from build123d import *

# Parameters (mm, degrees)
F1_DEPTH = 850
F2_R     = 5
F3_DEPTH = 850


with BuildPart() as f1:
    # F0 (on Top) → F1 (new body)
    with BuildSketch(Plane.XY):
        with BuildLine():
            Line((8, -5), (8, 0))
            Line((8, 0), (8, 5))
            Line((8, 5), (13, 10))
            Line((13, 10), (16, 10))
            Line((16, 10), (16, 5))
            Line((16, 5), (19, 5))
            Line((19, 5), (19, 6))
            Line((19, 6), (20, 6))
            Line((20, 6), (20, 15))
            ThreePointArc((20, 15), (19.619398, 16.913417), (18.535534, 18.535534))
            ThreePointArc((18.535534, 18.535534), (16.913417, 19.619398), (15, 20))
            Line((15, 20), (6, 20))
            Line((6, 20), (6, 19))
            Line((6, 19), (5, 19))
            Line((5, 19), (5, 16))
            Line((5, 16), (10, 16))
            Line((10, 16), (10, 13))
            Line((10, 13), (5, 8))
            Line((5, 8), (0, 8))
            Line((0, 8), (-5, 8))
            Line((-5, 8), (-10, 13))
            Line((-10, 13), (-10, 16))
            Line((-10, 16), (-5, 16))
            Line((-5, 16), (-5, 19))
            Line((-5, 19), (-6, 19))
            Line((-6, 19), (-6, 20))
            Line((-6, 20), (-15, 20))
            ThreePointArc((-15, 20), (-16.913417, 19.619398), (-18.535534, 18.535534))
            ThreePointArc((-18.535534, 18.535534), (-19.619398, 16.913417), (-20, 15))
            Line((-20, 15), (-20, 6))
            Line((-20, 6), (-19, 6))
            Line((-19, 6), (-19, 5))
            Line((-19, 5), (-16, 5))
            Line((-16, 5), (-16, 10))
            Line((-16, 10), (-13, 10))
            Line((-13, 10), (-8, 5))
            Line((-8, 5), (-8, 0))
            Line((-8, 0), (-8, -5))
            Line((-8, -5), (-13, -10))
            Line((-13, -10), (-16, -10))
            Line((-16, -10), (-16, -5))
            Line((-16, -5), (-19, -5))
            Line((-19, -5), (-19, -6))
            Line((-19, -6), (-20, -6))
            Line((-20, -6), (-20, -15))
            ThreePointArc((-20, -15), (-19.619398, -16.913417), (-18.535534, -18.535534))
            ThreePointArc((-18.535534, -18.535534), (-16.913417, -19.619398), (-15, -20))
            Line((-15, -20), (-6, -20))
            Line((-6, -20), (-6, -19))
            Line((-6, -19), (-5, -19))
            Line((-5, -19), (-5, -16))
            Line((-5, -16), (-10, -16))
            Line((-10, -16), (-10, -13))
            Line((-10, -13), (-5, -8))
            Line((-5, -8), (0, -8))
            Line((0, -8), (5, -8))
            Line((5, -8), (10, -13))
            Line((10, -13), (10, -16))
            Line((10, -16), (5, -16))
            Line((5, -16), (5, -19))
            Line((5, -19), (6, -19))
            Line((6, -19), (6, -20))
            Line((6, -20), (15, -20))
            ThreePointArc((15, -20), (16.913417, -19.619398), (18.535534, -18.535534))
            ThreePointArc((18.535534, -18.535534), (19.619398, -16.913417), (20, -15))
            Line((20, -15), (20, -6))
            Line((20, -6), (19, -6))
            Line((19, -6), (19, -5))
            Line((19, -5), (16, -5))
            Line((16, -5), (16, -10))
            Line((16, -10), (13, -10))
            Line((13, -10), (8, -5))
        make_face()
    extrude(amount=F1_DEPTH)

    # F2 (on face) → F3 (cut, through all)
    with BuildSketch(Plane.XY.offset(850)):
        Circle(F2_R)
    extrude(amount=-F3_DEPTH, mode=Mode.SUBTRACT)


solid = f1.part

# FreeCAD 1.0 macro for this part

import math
import FreeCAD as App
import Part
import Sketcher

doc = App.newDocument("Part")
body = doc.addObject("PartDesign::Body", "Body")

# Sketch on XY plane
sketch1 = body.newObject("Sketcher::SketchObject", "Sketch")
sketch1.AttachmentSupport = (doc.getObject("XY_Plane"), [""])
sketch1.MapMode = "FlatFace"
sketch1.addGeometry([
    Part.LineSegment(App.Vector(8, -5, 0), App.Vector(8, 5, 0)),  # 0
    Part.LineSegment(App.Vector(8, 5, 0), App.Vector(13, 10, 0)),  # 1
    Part.LineSegment(App.Vector(13, 10, 0), App.Vector(16, 10, 0)),  # 2
    Part.LineSegment(App.Vector(16, 10, 0), App.Vector(16, 5, 0)),  # 3
    Part.LineSegment(App.Vector(16, 5, 0), App.Vector(19, 5, 0)),  # 4
    Part.LineSegment(App.Vector(19, 5, 0), App.Vector(19, 6, 0)),  # 5
    Part.LineSegment(App.Vector(19, 6, 0), App.Vector(20, 6, 0)),  # 6
    Part.LineSegment(App.Vector(20, 6, 0), App.Vector(20, 15, 0)),  # 7
    Part.ArcOfCircle(Part.Circle(App.Vector(15, 15, 0), App.Vector(0, 0, 1), 5), math.radians(0), math.radians(45)),  # 8
    Part.ArcOfCircle(Part.Circle(App.Vector(15, 15, 0), App.Vector(0, 0, 1), 5), math.radians(45), math.radians(90)),  # 9
    Part.LineSegment(App.Vector(15, 20, 0), App.Vector(6, 20, 0)),  # 10
    Part.LineSegment(App.Vector(6, 20, 0), App.Vector(6, 19, 0)),  # 11
    Part.LineSegment(App.Vector(6, 19, 0), App.Vector(5, 19, 0)),  # 12
    Part.LineSegment(App.Vector(5, 19, 0), App.Vector(5, 16, 0)),  # 13
    Part.LineSegment(App.Vector(5, 16, 0), App.Vector(10, 16, 0)),  # 14
    Part.LineSegment(App.Vector(10, 16, 0), App.Vector(10, 13, 0)),  # 15
    Part.LineSegment(App.Vector(10, 13, 0), App.Vector(5, 8, 0)),  # 16
    Part.LineSegment(App.Vector(5, 8, 0), App.Vector(-5, 8, 0)),  # 17
    Part.LineSegment(App.Vector(-5, 8, 0), App.Vector(-10, 13, 0)),  # 18
    Part.LineSegment(App.Vector(-10, 13, 0), App.Vector(-10, 16, 0)),  # 19
    Part.LineSegment(App.Vector(-10, 16, 0), App.Vector(-5, 16, 0)),  # 20
    Part.LineSegment(App.Vector(-5, 16, 0), App.Vector(-5, 19, 0)),  # 21
    Part.LineSegment(App.Vector(-5, 19, 0), App.Vector(-6, 19, 0)),  # 22
    Part.LineSegment(App.Vector(-6, 19, 0), App.Vector(-6, 20, 0)),  # 23
    Part.LineSegment(App.Vector(-6, 20, 0), App.Vector(-15, 20, 0)),  # 24
    Part.ArcOfCircle(Part.Circle(App.Vector(-15, 15, 0), App.Vector(0, 0, 1), 5), math.radians(90), math.radians(135)),  # 25
    Part.ArcOfCircle(Part.Circle(App.Vector(-15, 15, 0), App.Vector(0, 0, 1), 5), math.radians(135), math.radians(180)),  # 26
    Part.LineSegment(App.Vector(-20, 15, 0), App.Vector(-20, 6, 0)),  # 27
    Part.LineSegment(App.Vector(-20, 6, 0), App.Vector(-19, 6, 0)),  # 28
    Part.LineSegment(App.Vector(-19, 6, 0), App.Vector(-19, 5, 0)),  # 29
    Part.LineSegment(App.Vector(-19, 5, 0), App.Vector(-16, 5, 0)),  # 30
    Part.LineSegment(App.Vector(-16, 5, 0), App.Vector(-16, 10, 0)),  # 31
    Part.LineSegment(App.Vector(-16, 10, 0), App.Vector(-13, 10, 0)),  # 32
    Part.LineSegment(App.Vector(-13, 10, 0), App.Vector(-8, 5, 0)),  # 33
    Part.LineSegment(App.Vector(-8, 5, 0), App.Vector(-8, -5, 0)),  # 34
    Part.LineSegment(App.Vector(-8, -5, 0), App.Vector(-13, -10, 0)),  # 35
    Part.LineSegment(App.Vector(-13, -10, 0), App.Vector(-16, -10, 0)),  # 36
    Part.LineSegment(App.Vector(-16, -10, 0), App.Vector(-16, -5, 0)),  # 37
    Part.LineSegment(App.Vector(-16, -5, 0), App.Vector(-19, -5, 0)),  # 38
    Part.LineSegment(App.Vector(-19, -5, 0), App.Vector(-19, -6, 0)),  # 39
    Part.LineSegment(App.Vector(-19, -6, 0), App.Vector(-20, -6, 0)),  # 40
    Part.LineSegment(App.Vector(-20, -6, 0), App.Vector(-20, -15, 0)),  # 41
    Part.ArcOfCircle(Part.Circle(App.Vector(-15, -15, 0), App.Vector(0, 0, 1), 5), math.radians(180), math.radians(225)),  # 42
    Part.ArcOfCircle(Part.Circle(App.Vector(-15, -15, 0), App.Vector(0, 0, 1), 5), math.radians(-135), math.radians(-90)),  # 43
    Part.LineSegment(App.Vector(-15, -20, 0), App.Vector(-6, -20, 0)),  # 44
    Part.LineSegment(App.Vector(-6, -20, 0), App.Vector(-6, -19, 0)),  # 45
    Part.LineSegment(App.Vector(-6, -19, 0), App.Vector(-5, -19, 0)),  # 46
    Part.LineSegment(App.Vector(-5, -19, 0), App.Vector(-5, -16, 0)),  # 47
    Part.LineSegment(App.Vector(-5, -16, 0), App.Vector(-10, -16, 0)),  # 48
    Part.LineSegment(App.Vector(-10, -16, 0), App.Vector(-10, -13, 0)),  # 49
    Part.LineSegment(App.Vector(-10, -13, 0), App.Vector(-5, -8, 0)),  # 50
    Part.LineSegment(App.Vector(-5, -8, 0), App.Vector(5, -8, 0)),  # 51
    Part.LineSegment(App.Vector(5, -8, 0), App.Vector(10, -13, 0)),  # 52
    Part.LineSegment(App.Vector(10, -13, 0), App.Vector(10, -16, 0)),  # 53
    Part.LineSegment(App.Vector(10, -16, 0), App.Vector(5, -16, 0)),  # 54
    Part.LineSegment(App.Vector(5, -16, 0), App.Vector(5, -19, 0)),  # 55
    Part.LineSegment(App.Vector(5, -19, 0), App.Vector(6, -19, 0)),  # 56
    Part.LineSegment(App.Vector(6, -19, 0), App.Vector(6, -20, 0)),  # 57
    Part.LineSegment(App.Vector(6, -20, 0), App.Vector(15, -20, 0)),  # 58
    Part.ArcOfCircle(Part.Circle(App.Vector(15, -15, 0), App.Vector(0, 0, 1), 5), math.radians(-90), math.radians(-45)),  # 59
    Part.ArcOfCircle(Part.Circle(App.Vector(15, -15, 0), App.Vector(0, 0, 1), 5), math.radians(-45), math.radians(0)),  # 60
    Part.LineSegment(App.Vector(20, -15, 0), App.Vector(20, -6, 0)),  # 61
    Part.LineSegment(App.Vector(20, -6, 0), App.Vector(19, -6, 0)),  # 62
    Part.LineSegment(App.Vector(19, -6, 0), App.Vector(19, -5, 0)),  # 63
    Part.LineSegment(App.Vector(19, -5, 0), App.Vector(16, -5, 0)),  # 64
    Part.LineSegment(App.Vector(16, -5, 0), App.Vector(16, -10, 0)),  # 65
    Part.LineSegment(App.Vector(16, -10, 0), App.Vector(13, -10, 0)),  # 66
    Part.LineSegment(App.Vector(13, -10, 0), App.Vector(8, -5, 0)),  # 67
], False)
sketch1.addConstraint([
    Sketcher.Constraint("Coincident", 0, 2, 1, 1),
    Sketcher.Constraint("Coincident", 1, 2, 2, 1),
    Sketcher.Constraint("Coincident", 2, 2, 3, 1),
    Sketcher.Constraint("Coincident", 3, 2, 4, 1),
    Sketcher.Constraint("Coincident", 4, 2, 5, 1),
    Sketcher.Constraint("Coincident", 5, 2, 6, 1),
    Sketcher.Constraint("Coincident", 6, 2, 7, 1),
    Sketcher.Constraint("Tangent", 7, 2, 8, 1),
    Sketcher.Constraint("Tangent", 8, 2, 9, 1),
    Sketcher.Constraint("Tangent", 9, 2, 10, 1),
    Sketcher.Constraint("Coincident", 10, 2, 11, 1),
    Sketcher.Constraint("Coincident", 11, 2, 12, 1),
    Sketcher.Constraint("Coincident", 12, 2, 13, 1),
    Sketcher.Constraint("Coincident", 13, 2, 14, 1),
    Sketcher.Constraint("Coincident", 14, 2, 15, 1),
    Sketcher.Constraint("Coincident", 15, 2, 16, 1),
    Sketcher.Constraint("Coincident", 16, 2, 17, 1),
    Sketcher.Constraint("Coincident", 17, 2, 18, 1),
    Sketcher.Constraint("Coincident", 18, 2, 19, 1),
    Sketcher.Constraint("Coincident", 19, 2, 20, 1),
    Sketcher.Constraint("Coincident", 20, 2, 21, 1),
    Sketcher.Constraint("Coincident", 21, 2, 22, 1),
    Sketcher.Constraint("Coincident", 22, 2, 23, 1),
    Sketcher.Constraint("Coincident", 23, 2, 24, 1),
    Sketcher.Constraint("Tangent", 24, 2, 25, 1),
    Sketcher.Constraint("Tangent", 25, 2, 26, 1),
    Sketcher.Constraint("Tangent", 26, 2, 27, 1),
    Sketcher.Constraint("Coincident", 27, 2, 28, 1),
    Sketcher.Constraint("Coincident", 28, 2, 29, 1),
    Sketcher.Constraint("Coincident", 29, 2, 30, 1),
    Sketcher.Constraint("Coincident", 30, 2, 31, 1),
    Sketcher.Constraint("Coincident", 31, 2, 32, 1),
    Sketcher.Constraint("Coincident", 32, 2, 33, 1),
    Sketcher.Constraint("Coincident", 33, 2, 34, 1),
    Sketcher.Constraint("Coincident", 34, 2, 35, 1),
    Sketcher.Constraint("Coincident", 35, 2, 36, 1),
    Sketcher.Constraint("Coincident", 36, 2, 37, 1),
    Sketcher.Constraint("Coincident", 37, 2, 38, 1),
    Sketcher.Constraint("Coincident", 38, 2, 39, 1),
    Sketcher.Constraint("Coincident", 39, 2, 40, 1),
    Sketcher.Constraint("Coincident", 40, 2, 41, 1),
    Sketcher.Constraint("Tangent", 41, 2, 42, 1),
    Sketcher.Constraint("Tangent", 42, 2, 43, 1),
    Sketcher.Constraint("Tangent", 43, 2, 44, 1),
    Sketcher.Constraint("Coincident", 44, 2, 45, 1),
    Sketcher.Constraint("Coincident", 45, 2, 46, 1),
    Sketcher.Constraint("Coincident", 46, 2, 47, 1),
    Sketcher.Constraint("Coincident", 47, 2, 48, 1),
    Sketcher.Constraint("Coincident", 48, 2, 49, 1),
    Sketcher.Constraint("Coincident", 49, 2, 50, 1),
    Sketcher.Constraint("Coincident", 50, 2, 51, 1),
    Sketcher.Constraint("Coincident", 51, 2, 52, 1),
    Sketcher.Constraint("Coincident", 52, 2, 53, 1),
    Sketcher.Constraint("Coincident", 53, 2, 54, 1),
    Sketcher.Constraint("Coincident", 54, 2, 55, 1),
    Sketcher.Constraint("Coincident", 55, 2, 56, 1),
    Sketcher.Constraint("Coincident", 56, 2, 57, 1),
    Sketcher.Constraint("Coincident", 57, 2, 58, 1),
    Sketcher.Constraint("Tangent", 58, 2, 59, 1),
    Sketcher.Constraint("Tangent", 59, 2, 60, 1),
    Sketcher.Constraint("Tangent", 60, 2, 61, 1),
    Sketcher.Constraint("Coincident", 61, 2, 62, 1),
    Sketcher.Constraint("Coincident", 62, 2, 63, 1),
    Sketcher.Constraint("Coincident", 63, 2, 64, 1),
    Sketcher.Constraint("Coincident", 64, 2, 65, 1),
    Sketcher.Constraint("Coincident", 65, 2, 66, 1),
    Sketcher.Constraint("Coincident", 66, 2, 67, 1),
    Sketcher.Constraint("Coincident", 67, 2, 0, 1),
    Sketcher.Constraint("Vertical", 0),
    Sketcher.Constraint("Horizontal", 2),
    Sketcher.Constraint("Vertical", 3),
    Sketcher.Constraint("Horizontal", 4),
    Sketcher.Constraint("Vertical", 5),
    Sketcher.Constraint("Horizontal", 6),
    Sketcher.Constraint("Vertical", 7),
    Sketcher.Constraint("Horizontal", 10),
    Sketcher.Constraint("Vertical", 11),
    Sketcher.Constraint("Horizontal", 12),
    Sketcher.Constraint("Vertical", 13),
    Sketcher.Constraint("Horizontal", 14),
    Sketcher.Constraint("Vertical", 15),
    Sketcher.Constraint("Horizontal", 17),
    Sketcher.Constraint("Vertical", 19),
    Sketcher.Constraint("Horizontal", 20),
    Sketcher.Constraint("Vertical", 21),
    Sketcher.Constraint("Horizontal", 22),
    Sketcher.Constraint("Vertical", 23),
    Sketcher.Constraint("Horizontal", 24),
    Sketcher.Constraint("Vertical", 27),
    Sketcher.Constraint("Horizontal", 28),
    Sketcher.Constraint("Vertical", 29),
    Sketcher.Constraint("Horizontal", 30),
    Sketcher.Constraint("Vertical", 31),
    Sketcher.Constraint("Horizontal", 32),
    Sketcher.Constraint("Vertical", 34),
    Sketcher.Constraint("Horizontal", 36),
    Sketcher.Constraint("Vertical", 37),
    Sketcher.Constraint("Horizontal", 38),
    Sketcher.Constraint("Vertical", 39),
    Sketcher.Constraint("Horizontal", 40),
    Sketcher.Constraint("Vertical", 41),
    Sketcher.Constraint("Horizontal", 44),
    Sketcher.Constraint("Vertical", 45),
    Sketcher.Constraint("Horizontal", 46),
    Sketcher.Constraint("Vertical", 47),
    Sketcher.Constraint("Horizontal", 48),
    Sketcher.Constraint("Vertical", 49),
    Sketcher.Constraint("Horizontal", 51),
    Sketcher.Constraint("Vertical", 53),
    Sketcher.Constraint("Horizontal", 54),
    Sketcher.Constraint("Vertical", 55),
    Sketcher.Constraint("Horizontal", 56),
    Sketcher.Constraint("Vertical", 57),
    Sketcher.Constraint("Horizontal", 58),
    Sketcher.Constraint("Vertical", 61),
    Sketcher.Constraint("Horizontal", 62),
    Sketcher.Constraint("Vertical", 63),
    Sketcher.Constraint("Horizontal", 64),
    Sketcher.Constraint("Vertical", 65),
    Sketcher.Constraint("Horizontal", 66),
    Sketcher.Constraint("Equal", 8, 9),
    Sketcher.Constraint("Equal", 9, 25),
    Sketcher.Constraint("Equal", 25, 26),
    Sketcher.Constraint("Equal", 26, 42),
    Sketcher.Constraint("Equal", 42, 43),
    Sketcher.Constraint("Equal", 43, 59),
    Sketcher.Constraint("Equal", 59, 60),
    Sketcher.Constraint("Symmetric", 8, 3, 42, 3, -1, 1),
    Sketcher.Constraint("Symmetric", 25, 3, 59, 3, -1, 1),
    Sketcher.Constraint("Symmetric", 0, 2, 34, 2, -1, 1),
    Sketcher.Constraint("Symmetric", 1, 2, 35, 2, -1, 1),
    Sketcher.Constraint("Symmetric", 3, 2, 37, 2, -1, 1),
    Sketcher.Constraint("Symmetric", 5, 2, 39, 2, -1, 1),
    Sketcher.Constraint("Symmetric", 11, 2, 45, 2, -1, 1),
    Sketcher.Constraint("Symmetric", 13, 2, 47, 2, -1, 1),
    Sketcher.Constraint("Symmetric", 15, 2, 49, 2, -1, 1),
    Sketcher.Constraint("Symmetric", 16, 2, 50, 2, -1, 1),
    Sketcher.Constraint("Symmetric", 18, 2, 52, 2, -1, 1),
    Sketcher.Constraint("Symmetric", 20, 2, 54, 2, -1, 1),
    Sketcher.Constraint("Symmetric", 22, 2, 56, 2, -1, 1),
    Sketcher.Constraint("Symmetric", 28, 2, 62, 2, -1, 1),
    Sketcher.Constraint("Symmetric", 30, 2, 64, 2, -1, 1),
    Sketcher.Constraint("Symmetric", 32, 2, 66, 2, -1, 1),
    Sketcher.Constraint("Symmetric", 8, 3, 25, 3, -2),
    Sketcher.Constraint("Symmetric", 15, 2, 18, 2, -2),
    Sketcher.Constraint("Symmetric", 13, 2, 20, 2, -2),
    Sketcher.Constraint("Symmetric", 11, 2, 22, 2, -2),
    Sketcher.Constraint("Symmetric", 5, 2, 28, 2, -2),
    Sketcher.Constraint("Symmetric", 3, 2, 30, 2, -2),
    Sketcher.Constraint("Symmetric", 1, 2, 32, 2, -2),
    Sketcher.Constraint("Parallel", 1, 16),
    Sketcher.Constraint("Perpendicular", 16, 18),
    Sketcher.Constraint("Parallel", 18, 33),
    Sketcher.Constraint("Perpendicular", 50, 52),
    Sketcher.Constraint("Parallel", 52, 67),
    Sketcher.Constraint("Horizontal", 0, 2, 3, 2),
    Sketcher.Constraint("Horizontal", 8, 2, 25, 2),
    Sketcher.Constraint("Horizontal", 30, 2, 33, 2),
    Sketcher.Constraint("Horizontal", 42, 2, 59, 2),
    Sketcher.Constraint("Vertical", 13, 2, 16, 2),
    Sketcher.Constraint("Vertical", 25, 2, 42, 2),
    Sketcher.Constraint("Equal", 2, 4),
    Sketcher.Constraint("Equal", 6, 12),
    Sketcher.Constraint("Equal", 51, 0),
    Sketcher.Constraint("Equal", 54, 3),
    Sketcher.Constraint("Equal", 62, 5),
    Sketcher.Constraint("Equal", 58, 7),
    Sketcher.Constraint("Equal", 5, 11),
    Sketcher.Constraint("Equal", 66, 13),
    Sketcher.Constraint("Equal", 13, 15),
    Sketcher.Constraint("DistanceX", 2, 1, 2, 2, 3.0),
    Sketcher.Constraint("DistanceX", 6, 1, 6, 2, 1.0),
    Sketcher.Constraint("DistanceX", 10, 2, 10, 1, 9.0),
    Sketcher.Constraint("DistanceX", 14, 1, 14, 2, 5.0),
    Sketcher.Constraint("DistanceX", 17, 2, 17, 1, 10.0),
    Sketcher.Constraint("DistanceX", -1, 1, 0, 2, 8.0),
    Sketcher.Constraint("DistanceX", -1, 1, 8, 2, 18.535534),
])
pad1 = body.newObject("PartDesign::Pad", "Pad")
pad1.Profile = sketch1
pad1.Length = 850

# Sketch on XY plane
sketch2 = body.newObject("Sketcher::SketchObject", "Sketch001")
sketch2.AttachmentSupport = (doc.getObject("XY_Plane"), [""])
sketch2.MapMode = "FlatFace"
sketch2.AttachmentOffset = App.Placement(App.Vector(0, 0, 850), App.Rotation())
sketch2.addGeometry(Part.Circle(App.Vector(0, 0, 0), App.Vector(0, 0, 1), 5), False)
sketch2.addConstraint([
    Sketcher.Constraint("Coincident", 0, 3, -1, 1),
    Sketcher.Constraint("Diameter", 0, 10.0),
])
pocket1 = body.newObject("PartDesign::Pocket", "Pocket")
pocket1.Profile = sketch2
pocket1.Type = "ThroughAll"

doc.recompute()
